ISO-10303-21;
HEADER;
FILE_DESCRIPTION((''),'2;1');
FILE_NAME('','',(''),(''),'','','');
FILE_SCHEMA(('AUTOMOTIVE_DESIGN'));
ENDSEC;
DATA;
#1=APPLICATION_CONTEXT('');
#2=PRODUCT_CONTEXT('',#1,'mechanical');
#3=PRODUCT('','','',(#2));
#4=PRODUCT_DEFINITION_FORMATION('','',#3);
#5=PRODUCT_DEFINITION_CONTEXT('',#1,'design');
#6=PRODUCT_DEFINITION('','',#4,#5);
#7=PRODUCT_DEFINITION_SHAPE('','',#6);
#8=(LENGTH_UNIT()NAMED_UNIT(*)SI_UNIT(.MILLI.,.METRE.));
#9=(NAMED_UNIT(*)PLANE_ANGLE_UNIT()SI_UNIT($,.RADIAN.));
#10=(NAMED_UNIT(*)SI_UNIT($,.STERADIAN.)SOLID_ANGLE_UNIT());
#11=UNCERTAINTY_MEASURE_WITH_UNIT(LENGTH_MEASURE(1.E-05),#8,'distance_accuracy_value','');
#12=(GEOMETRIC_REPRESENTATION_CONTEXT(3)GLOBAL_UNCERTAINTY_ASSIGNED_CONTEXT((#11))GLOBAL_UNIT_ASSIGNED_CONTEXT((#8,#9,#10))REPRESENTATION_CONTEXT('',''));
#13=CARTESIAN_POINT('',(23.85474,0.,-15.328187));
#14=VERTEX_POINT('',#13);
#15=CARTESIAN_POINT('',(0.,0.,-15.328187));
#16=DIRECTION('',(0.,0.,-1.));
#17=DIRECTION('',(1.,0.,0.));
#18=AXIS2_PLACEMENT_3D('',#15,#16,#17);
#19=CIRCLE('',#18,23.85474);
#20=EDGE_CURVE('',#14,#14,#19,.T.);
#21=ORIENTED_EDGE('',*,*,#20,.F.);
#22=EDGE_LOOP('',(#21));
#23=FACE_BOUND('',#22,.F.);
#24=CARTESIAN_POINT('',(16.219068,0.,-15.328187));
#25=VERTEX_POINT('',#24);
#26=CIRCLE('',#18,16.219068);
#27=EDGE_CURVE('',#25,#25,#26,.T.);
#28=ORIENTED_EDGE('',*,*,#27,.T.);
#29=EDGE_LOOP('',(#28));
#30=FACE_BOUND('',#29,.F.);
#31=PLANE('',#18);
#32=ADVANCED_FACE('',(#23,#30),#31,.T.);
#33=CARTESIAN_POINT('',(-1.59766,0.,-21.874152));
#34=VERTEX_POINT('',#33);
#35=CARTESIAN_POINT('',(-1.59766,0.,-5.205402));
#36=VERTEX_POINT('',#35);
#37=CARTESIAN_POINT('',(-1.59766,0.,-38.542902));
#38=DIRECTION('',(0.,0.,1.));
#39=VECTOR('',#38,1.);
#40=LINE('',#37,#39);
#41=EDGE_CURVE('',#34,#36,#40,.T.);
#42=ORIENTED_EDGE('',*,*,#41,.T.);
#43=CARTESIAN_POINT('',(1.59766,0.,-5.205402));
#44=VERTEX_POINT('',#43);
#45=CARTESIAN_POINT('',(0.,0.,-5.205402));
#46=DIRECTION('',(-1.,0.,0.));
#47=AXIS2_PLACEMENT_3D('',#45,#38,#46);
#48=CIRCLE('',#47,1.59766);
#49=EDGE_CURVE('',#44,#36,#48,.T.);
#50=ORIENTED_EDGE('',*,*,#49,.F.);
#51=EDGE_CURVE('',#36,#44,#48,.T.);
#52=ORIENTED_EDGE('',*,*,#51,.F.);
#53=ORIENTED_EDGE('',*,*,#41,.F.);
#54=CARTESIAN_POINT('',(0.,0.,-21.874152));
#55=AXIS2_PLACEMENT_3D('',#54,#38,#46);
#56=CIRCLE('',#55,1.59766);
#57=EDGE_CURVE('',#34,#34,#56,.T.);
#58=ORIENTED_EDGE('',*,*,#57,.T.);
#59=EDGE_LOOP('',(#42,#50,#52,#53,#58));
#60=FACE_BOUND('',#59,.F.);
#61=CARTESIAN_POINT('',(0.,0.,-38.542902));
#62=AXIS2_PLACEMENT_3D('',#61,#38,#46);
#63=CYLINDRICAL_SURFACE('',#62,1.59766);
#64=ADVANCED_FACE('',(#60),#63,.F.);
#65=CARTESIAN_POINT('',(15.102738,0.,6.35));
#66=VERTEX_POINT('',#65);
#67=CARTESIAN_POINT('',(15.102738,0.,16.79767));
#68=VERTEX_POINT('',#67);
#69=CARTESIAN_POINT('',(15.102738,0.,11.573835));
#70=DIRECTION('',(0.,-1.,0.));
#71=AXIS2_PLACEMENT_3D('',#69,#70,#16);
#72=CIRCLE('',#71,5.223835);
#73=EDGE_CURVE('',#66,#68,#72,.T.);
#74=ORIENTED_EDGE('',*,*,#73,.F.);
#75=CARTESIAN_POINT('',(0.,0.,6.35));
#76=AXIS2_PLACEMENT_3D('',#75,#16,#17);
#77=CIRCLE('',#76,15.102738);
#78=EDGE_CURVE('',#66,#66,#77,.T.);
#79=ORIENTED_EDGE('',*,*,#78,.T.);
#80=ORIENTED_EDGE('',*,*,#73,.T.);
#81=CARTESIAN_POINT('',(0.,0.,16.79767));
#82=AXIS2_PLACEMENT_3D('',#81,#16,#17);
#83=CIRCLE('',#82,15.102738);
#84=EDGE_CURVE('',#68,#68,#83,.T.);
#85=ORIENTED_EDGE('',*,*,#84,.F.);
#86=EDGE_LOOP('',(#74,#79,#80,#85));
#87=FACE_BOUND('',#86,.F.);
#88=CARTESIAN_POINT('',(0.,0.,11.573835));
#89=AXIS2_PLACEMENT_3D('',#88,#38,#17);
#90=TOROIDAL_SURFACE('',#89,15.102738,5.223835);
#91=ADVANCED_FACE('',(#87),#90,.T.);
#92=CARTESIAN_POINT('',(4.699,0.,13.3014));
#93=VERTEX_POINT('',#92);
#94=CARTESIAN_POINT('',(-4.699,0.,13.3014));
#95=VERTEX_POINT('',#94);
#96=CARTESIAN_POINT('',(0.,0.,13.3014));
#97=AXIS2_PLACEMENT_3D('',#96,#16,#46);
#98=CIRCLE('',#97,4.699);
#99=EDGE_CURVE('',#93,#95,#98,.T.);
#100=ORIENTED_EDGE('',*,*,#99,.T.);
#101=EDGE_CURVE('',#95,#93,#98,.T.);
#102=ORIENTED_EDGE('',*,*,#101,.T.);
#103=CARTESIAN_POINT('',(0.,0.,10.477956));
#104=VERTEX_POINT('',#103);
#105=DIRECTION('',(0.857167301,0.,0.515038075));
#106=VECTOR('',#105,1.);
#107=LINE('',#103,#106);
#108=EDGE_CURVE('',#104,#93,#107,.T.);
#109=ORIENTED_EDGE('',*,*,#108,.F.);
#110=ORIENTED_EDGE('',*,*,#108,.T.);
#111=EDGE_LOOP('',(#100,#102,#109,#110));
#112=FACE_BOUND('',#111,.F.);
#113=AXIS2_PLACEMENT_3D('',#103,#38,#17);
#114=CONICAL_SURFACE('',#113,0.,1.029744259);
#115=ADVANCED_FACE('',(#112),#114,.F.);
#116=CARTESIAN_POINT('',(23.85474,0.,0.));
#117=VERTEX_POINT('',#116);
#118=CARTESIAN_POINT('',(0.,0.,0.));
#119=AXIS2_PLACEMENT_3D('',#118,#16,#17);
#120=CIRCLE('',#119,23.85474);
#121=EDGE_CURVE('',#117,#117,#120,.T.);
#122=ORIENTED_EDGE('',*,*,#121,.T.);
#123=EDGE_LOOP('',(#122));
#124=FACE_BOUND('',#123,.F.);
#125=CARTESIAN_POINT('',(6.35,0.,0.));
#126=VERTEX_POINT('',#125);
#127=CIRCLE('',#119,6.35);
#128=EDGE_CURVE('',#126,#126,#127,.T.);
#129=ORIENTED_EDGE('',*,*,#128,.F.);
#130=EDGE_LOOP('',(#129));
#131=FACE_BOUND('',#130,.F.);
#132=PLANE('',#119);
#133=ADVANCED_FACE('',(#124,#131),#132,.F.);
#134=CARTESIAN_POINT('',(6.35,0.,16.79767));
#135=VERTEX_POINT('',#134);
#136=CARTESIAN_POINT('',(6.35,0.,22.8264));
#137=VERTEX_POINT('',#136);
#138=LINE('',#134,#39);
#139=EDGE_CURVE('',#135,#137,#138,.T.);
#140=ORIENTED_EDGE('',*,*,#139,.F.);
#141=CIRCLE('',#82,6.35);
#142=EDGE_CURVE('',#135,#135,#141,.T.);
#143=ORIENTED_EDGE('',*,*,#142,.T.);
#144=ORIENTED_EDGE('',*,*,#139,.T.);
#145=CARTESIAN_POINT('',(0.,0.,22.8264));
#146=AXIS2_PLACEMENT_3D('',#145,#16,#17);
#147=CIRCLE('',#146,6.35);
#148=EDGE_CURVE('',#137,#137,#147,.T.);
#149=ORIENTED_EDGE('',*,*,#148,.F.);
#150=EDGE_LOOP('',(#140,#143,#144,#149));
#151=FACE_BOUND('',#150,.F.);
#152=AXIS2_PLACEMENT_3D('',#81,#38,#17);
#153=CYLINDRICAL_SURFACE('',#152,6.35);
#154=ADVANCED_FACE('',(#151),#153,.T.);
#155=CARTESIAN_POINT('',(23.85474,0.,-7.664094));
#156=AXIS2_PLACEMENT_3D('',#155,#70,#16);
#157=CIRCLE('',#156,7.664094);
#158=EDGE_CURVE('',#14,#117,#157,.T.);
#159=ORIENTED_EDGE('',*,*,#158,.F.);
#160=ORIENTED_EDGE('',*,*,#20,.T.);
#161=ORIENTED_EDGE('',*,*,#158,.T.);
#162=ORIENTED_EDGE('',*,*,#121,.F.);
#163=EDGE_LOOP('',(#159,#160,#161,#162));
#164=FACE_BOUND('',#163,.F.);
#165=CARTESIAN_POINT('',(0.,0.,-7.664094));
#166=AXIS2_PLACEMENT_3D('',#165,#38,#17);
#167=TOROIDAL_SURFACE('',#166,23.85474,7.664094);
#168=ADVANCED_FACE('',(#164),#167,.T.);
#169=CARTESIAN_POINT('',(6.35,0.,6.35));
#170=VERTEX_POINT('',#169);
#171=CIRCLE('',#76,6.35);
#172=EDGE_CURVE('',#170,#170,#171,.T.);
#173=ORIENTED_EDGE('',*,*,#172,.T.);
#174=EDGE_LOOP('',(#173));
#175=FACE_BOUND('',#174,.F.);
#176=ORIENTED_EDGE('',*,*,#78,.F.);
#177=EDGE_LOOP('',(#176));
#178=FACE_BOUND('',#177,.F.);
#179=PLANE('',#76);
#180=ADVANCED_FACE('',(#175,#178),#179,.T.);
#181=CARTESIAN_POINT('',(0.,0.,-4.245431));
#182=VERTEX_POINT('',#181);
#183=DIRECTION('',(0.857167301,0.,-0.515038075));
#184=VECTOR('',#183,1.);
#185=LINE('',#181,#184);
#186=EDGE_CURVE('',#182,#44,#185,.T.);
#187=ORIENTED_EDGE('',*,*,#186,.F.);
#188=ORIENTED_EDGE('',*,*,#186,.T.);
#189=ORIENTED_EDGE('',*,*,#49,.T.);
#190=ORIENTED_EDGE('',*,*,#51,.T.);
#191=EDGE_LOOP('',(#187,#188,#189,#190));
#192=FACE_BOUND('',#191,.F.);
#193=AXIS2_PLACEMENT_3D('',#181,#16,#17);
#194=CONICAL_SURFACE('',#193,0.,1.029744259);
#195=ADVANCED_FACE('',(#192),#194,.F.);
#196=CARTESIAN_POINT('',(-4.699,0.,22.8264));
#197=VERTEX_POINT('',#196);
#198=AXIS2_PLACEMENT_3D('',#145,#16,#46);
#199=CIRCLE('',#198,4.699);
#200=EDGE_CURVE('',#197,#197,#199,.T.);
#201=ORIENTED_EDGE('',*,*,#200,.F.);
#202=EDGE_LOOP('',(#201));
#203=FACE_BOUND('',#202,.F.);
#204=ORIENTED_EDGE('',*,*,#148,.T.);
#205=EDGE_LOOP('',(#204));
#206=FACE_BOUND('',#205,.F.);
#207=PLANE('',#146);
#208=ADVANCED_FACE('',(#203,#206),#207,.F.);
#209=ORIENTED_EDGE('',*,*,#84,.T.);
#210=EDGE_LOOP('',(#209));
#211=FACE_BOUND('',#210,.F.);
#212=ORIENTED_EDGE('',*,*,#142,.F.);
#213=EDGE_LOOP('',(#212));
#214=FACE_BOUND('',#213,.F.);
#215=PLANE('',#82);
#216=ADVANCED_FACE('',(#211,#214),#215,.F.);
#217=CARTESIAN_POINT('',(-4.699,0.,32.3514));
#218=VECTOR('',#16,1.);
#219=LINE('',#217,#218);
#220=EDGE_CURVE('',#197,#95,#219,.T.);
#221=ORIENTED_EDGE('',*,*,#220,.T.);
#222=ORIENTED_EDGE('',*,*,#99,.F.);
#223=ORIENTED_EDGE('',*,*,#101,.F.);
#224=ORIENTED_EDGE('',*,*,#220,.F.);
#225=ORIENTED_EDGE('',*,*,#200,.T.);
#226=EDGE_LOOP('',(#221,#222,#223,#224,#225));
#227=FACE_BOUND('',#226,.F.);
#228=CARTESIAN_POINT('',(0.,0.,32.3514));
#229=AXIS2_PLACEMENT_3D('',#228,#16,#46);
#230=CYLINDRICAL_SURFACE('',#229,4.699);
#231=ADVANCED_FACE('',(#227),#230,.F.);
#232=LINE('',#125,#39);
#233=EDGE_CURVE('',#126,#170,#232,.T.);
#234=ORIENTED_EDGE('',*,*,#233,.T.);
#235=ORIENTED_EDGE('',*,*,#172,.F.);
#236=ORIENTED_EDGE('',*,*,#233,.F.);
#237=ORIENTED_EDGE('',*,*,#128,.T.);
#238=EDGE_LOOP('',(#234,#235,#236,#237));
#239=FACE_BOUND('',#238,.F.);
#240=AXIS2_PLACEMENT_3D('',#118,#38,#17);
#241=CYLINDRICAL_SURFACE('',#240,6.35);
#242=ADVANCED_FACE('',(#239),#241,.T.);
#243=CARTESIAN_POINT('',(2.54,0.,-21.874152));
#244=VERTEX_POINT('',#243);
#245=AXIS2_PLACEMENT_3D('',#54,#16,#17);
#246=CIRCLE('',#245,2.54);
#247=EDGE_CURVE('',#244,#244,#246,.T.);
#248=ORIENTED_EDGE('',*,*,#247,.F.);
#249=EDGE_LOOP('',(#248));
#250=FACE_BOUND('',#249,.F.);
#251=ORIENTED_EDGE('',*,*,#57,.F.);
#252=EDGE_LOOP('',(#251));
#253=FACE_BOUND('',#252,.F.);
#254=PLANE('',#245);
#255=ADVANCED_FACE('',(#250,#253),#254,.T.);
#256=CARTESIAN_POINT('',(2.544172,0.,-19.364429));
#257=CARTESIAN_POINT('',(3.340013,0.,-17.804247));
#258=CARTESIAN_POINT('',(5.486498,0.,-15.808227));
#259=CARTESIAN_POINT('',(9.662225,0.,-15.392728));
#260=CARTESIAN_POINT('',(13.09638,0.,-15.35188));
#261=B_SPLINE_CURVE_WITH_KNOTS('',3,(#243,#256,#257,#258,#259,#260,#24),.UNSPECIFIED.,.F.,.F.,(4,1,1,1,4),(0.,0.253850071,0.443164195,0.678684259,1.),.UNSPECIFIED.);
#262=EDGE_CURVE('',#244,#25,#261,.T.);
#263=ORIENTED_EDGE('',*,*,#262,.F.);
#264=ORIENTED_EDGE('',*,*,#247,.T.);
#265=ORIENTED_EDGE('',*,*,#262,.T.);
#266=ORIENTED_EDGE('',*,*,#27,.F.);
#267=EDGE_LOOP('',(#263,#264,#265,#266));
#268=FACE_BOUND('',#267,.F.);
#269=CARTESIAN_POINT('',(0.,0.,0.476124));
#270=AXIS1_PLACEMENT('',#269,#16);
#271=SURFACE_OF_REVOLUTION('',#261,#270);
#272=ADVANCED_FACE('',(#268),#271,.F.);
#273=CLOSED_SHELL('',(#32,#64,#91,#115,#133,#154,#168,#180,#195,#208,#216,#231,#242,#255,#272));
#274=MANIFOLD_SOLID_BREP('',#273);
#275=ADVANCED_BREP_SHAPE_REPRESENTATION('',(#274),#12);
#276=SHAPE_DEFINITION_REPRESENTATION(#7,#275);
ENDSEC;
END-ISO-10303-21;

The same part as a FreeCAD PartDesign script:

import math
import FreeCAD as App
import Part
import Sketcher

V = App.Vector
Q = App.Units.Quantity

doc = App.newDocument("Part")
body = doc.addObject("PartDesign::Body", "Body")

# Sketch on XZ plane
sketch1 = doc.addObject("Sketcher::SketchObject", "Sketch")
body.addObject(sketch1)
sketch1.AttachmentSupport = (doc.XZ_Plane, [""])
sketch1.MapMode = "FlatFace"
sketch1.addGeometry([
    Part.LineSegment(V(0, 22.8264, 0), V(0, -21.874152, 0)),  # 0
    Part.LineSegment(V(0, -21.874152, 0), V(2.54, -21.874152, 0)),  # 1
    Part.BSplineCurve([V(2.54, -21.874152, 0), V(2.544172, -19.364429, 0), V(3.340013, -17.804247, 0), V(5.486498, -15.808227, 0), V(9.662225, -15.392728, 0), V(13.09638, -15.35188, 0), V(16.219068, -15.328187, 0)], [4, 1, 1, 1, 4], [0, 0.253850071, 0.443164195, 0.678684259, 1], False, 3, [1, 1, 1, 1, 1, 1, 1], False),  # 2
    Part.LineSegment(V(16.219068, -15.328187, 0), V(23.85474, -15.328187, 0)),  # 3
    Part.ArcOfCircle(Part.Circle(V(23.85474, -7.664094, 0), V(0, 0, 1), 7.664094), math.radians(-90), math.radians(90)),  # 4
    Part.LineSegment(V(23.85474, 0, 0), V(6.35, 0, 0)),  # 5
    Part.LineSegment(V(6.35, 0, 0), V(6.35, 6.35, 0)),  # 6
    Part.LineSegment(V(6.35, 6.35, 0), V(15.102738, 6.35, 0)),  # 7
    Part.ArcOfCircle(Part.Circle(V(15.102738, 11.573835, 0), V(0, 0, 1), 5.223835), math.radians(-90), math.radians(90)),  # 8
    Part.LineSegment(V(15.102738, 16.79767, 0), V(6.35, 16.79767, 0)),  # 9
    Part.LineSegment(V(6.35, 16.79767, 0), V(6.35, 22.8264, 0)),  # 10
    Part.LineSegment(V(6.35, 22.8264, 0), V(0, 22.8264, 0)),  # 11
], False)
sketch1.addConstraint([
    Sketcher.Constraint("Block", 2),
    Sketcher.Constraint("Coincident", 0, 2, 1, 1),
    Sketcher.Constraint("Coincident", 1, 2, 2, 1),
    Sketcher.Constraint("Coincident", 2, 2, 3, 1),
    Sketcher.Constraint("Tangent", 3, 2, 4, 1),
    Sketcher.Constraint("Tangent", 4, 2, 5, 1),
    Sketcher.Constraint("Coincident", 5, 2, 6, 1),
    Sketcher.Constraint("Coincident", 6, 2, 7, 1),
    Sketcher.Constraint("Tangent", 7, 2, 8, 1),
    Sketcher.Constraint("Tangent", 8, 2, 9, 1),
    Sketcher.Constraint("Coincident", 9, 2, 10, 1),
    Sketcher.Constraint("Coincident", 10, 2, 11, 1),
    Sketcher.Constraint("Coincident", 11, 2, 0, 1),
    Sketcher.Constraint("Vertical", 0),
    Sketcher.Constraint("Horizontal", 1),
    Sketcher.Constraint("Horizontal", 3),
    Sketcher.Constraint("Horizontal", 5),
    Sketcher.Constraint("Vertical", 6),
    Sketcher.Constraint("Horizontal", 7),
    Sketcher.Constraint("Horizontal", 9),
    Sketcher.Constraint("Vertical", 10),
    Sketcher.Constraint("Horizontal", 11),
    Sketcher.Constraint("PointOnObject", 0, 2, -2),
    Sketcher.Constraint("PointOnObject", 4, 2, -1),
    Sketcher.Constraint("Vertical", 6, 2, 9, 2),
    Sketcher.Constraint("Equal", 11, 6),
    Sketcher.Constraint("DistanceX", 11, 2, 11, 1, Q("0.25 in")),
    Sketcher.Constraint("Radius", 8, Q("5.223835 mm")),
    Sketcher.Constraint("DistanceX", 3, 1, 3, 2, Q("7.635672 mm")),
    Sketcher.Constraint("DistanceX", 7, 1, 7, 2, Q("8.752738 mm")),
    Sketcher.Constraint("DistanceY", 0, 2, 0, 1, Q("44.700552 mm")),
])
revolution = doc.addObject("PartDesign::Revolution", "Revolution")
body.addObject(revolution)
revolution.Profile = sketch1
revolution.ReferenceAxis = (sketch1, ["V_Axis"])
revolution.Angle = 360

# Sketch on XY plane
sketch2 = doc.addObject("Sketcher::SketchObject", "Sketch001")
body.addObject(sketch2)
sketch2.AttachmentSupport = (doc.XY_Plane, [""])
sketch2.MapMode = "FlatFace"
sketch2.AttachmentOffset = App.Placement(V(0, 0, 22.8264), App.Rotation())
sketch2.addGeometry(Part.Circle(V(0, 0, 0), V(0, 0, 1), 4.699), False)
sketch2.addConstraint([
    Sketcher.Constraint("Coincident", 0, 3, -1, 1),
    Sketcher.Constraint("Diameter", 0, Q("0.37 in")),
])
doc.recompute()
hole = doc.addObject("PartDesign::Hole", "Hole")
body.addObject(hole)
hole.Profile = sketch2
hole.ThreadType = "None"
hole.Diameter = Q("0.37 in")
hole.DepthType = "Dimension"
hole.Depth = Q("0.375 in")
hole.DrillPoint = "Angled"
hole.DrillPointAngle = 118

# Sketch on XY plane
sketch3 = doc.addObject("Sketcher::SketchObject", "Sketch002")
body.addObject(sketch3)
sketch3.AttachmentSupport = (doc.XY_Plane, [""])
sketch3.MapMode = "FlatFace"
sketch3.AttachmentOffset = App.Placement(V(0, 0, -21.874152), App.Rotation())
sketch3.addGeometry(Part.Circle(V(0, 0, 0), V(0, 0, 1), 1.59766), False)
sketch3.addConstraint([
    Sketcher.Constraint("Coincident", 0, 3, -1, 1),
    Sketcher.Constraint("Diameter", 0, Q("0.1258 in")),
])
doc.recompute()
hole2 = doc.addObject("PartDesign::Hole", "Hole001")
body.addObject(hole2)
hole2.Profile = sketch3
hole2.ThreadType = "None"
hole2.Diameter = Q("0.1258 in")
hole2.DepthType = "Dimension"
hole2.Depth = Q("0.65625 in")
hole2.DrillPoint = "Angled"
hole2.DrillPointAngle = 118
hole2.Reversed = True

doc.recompute()
